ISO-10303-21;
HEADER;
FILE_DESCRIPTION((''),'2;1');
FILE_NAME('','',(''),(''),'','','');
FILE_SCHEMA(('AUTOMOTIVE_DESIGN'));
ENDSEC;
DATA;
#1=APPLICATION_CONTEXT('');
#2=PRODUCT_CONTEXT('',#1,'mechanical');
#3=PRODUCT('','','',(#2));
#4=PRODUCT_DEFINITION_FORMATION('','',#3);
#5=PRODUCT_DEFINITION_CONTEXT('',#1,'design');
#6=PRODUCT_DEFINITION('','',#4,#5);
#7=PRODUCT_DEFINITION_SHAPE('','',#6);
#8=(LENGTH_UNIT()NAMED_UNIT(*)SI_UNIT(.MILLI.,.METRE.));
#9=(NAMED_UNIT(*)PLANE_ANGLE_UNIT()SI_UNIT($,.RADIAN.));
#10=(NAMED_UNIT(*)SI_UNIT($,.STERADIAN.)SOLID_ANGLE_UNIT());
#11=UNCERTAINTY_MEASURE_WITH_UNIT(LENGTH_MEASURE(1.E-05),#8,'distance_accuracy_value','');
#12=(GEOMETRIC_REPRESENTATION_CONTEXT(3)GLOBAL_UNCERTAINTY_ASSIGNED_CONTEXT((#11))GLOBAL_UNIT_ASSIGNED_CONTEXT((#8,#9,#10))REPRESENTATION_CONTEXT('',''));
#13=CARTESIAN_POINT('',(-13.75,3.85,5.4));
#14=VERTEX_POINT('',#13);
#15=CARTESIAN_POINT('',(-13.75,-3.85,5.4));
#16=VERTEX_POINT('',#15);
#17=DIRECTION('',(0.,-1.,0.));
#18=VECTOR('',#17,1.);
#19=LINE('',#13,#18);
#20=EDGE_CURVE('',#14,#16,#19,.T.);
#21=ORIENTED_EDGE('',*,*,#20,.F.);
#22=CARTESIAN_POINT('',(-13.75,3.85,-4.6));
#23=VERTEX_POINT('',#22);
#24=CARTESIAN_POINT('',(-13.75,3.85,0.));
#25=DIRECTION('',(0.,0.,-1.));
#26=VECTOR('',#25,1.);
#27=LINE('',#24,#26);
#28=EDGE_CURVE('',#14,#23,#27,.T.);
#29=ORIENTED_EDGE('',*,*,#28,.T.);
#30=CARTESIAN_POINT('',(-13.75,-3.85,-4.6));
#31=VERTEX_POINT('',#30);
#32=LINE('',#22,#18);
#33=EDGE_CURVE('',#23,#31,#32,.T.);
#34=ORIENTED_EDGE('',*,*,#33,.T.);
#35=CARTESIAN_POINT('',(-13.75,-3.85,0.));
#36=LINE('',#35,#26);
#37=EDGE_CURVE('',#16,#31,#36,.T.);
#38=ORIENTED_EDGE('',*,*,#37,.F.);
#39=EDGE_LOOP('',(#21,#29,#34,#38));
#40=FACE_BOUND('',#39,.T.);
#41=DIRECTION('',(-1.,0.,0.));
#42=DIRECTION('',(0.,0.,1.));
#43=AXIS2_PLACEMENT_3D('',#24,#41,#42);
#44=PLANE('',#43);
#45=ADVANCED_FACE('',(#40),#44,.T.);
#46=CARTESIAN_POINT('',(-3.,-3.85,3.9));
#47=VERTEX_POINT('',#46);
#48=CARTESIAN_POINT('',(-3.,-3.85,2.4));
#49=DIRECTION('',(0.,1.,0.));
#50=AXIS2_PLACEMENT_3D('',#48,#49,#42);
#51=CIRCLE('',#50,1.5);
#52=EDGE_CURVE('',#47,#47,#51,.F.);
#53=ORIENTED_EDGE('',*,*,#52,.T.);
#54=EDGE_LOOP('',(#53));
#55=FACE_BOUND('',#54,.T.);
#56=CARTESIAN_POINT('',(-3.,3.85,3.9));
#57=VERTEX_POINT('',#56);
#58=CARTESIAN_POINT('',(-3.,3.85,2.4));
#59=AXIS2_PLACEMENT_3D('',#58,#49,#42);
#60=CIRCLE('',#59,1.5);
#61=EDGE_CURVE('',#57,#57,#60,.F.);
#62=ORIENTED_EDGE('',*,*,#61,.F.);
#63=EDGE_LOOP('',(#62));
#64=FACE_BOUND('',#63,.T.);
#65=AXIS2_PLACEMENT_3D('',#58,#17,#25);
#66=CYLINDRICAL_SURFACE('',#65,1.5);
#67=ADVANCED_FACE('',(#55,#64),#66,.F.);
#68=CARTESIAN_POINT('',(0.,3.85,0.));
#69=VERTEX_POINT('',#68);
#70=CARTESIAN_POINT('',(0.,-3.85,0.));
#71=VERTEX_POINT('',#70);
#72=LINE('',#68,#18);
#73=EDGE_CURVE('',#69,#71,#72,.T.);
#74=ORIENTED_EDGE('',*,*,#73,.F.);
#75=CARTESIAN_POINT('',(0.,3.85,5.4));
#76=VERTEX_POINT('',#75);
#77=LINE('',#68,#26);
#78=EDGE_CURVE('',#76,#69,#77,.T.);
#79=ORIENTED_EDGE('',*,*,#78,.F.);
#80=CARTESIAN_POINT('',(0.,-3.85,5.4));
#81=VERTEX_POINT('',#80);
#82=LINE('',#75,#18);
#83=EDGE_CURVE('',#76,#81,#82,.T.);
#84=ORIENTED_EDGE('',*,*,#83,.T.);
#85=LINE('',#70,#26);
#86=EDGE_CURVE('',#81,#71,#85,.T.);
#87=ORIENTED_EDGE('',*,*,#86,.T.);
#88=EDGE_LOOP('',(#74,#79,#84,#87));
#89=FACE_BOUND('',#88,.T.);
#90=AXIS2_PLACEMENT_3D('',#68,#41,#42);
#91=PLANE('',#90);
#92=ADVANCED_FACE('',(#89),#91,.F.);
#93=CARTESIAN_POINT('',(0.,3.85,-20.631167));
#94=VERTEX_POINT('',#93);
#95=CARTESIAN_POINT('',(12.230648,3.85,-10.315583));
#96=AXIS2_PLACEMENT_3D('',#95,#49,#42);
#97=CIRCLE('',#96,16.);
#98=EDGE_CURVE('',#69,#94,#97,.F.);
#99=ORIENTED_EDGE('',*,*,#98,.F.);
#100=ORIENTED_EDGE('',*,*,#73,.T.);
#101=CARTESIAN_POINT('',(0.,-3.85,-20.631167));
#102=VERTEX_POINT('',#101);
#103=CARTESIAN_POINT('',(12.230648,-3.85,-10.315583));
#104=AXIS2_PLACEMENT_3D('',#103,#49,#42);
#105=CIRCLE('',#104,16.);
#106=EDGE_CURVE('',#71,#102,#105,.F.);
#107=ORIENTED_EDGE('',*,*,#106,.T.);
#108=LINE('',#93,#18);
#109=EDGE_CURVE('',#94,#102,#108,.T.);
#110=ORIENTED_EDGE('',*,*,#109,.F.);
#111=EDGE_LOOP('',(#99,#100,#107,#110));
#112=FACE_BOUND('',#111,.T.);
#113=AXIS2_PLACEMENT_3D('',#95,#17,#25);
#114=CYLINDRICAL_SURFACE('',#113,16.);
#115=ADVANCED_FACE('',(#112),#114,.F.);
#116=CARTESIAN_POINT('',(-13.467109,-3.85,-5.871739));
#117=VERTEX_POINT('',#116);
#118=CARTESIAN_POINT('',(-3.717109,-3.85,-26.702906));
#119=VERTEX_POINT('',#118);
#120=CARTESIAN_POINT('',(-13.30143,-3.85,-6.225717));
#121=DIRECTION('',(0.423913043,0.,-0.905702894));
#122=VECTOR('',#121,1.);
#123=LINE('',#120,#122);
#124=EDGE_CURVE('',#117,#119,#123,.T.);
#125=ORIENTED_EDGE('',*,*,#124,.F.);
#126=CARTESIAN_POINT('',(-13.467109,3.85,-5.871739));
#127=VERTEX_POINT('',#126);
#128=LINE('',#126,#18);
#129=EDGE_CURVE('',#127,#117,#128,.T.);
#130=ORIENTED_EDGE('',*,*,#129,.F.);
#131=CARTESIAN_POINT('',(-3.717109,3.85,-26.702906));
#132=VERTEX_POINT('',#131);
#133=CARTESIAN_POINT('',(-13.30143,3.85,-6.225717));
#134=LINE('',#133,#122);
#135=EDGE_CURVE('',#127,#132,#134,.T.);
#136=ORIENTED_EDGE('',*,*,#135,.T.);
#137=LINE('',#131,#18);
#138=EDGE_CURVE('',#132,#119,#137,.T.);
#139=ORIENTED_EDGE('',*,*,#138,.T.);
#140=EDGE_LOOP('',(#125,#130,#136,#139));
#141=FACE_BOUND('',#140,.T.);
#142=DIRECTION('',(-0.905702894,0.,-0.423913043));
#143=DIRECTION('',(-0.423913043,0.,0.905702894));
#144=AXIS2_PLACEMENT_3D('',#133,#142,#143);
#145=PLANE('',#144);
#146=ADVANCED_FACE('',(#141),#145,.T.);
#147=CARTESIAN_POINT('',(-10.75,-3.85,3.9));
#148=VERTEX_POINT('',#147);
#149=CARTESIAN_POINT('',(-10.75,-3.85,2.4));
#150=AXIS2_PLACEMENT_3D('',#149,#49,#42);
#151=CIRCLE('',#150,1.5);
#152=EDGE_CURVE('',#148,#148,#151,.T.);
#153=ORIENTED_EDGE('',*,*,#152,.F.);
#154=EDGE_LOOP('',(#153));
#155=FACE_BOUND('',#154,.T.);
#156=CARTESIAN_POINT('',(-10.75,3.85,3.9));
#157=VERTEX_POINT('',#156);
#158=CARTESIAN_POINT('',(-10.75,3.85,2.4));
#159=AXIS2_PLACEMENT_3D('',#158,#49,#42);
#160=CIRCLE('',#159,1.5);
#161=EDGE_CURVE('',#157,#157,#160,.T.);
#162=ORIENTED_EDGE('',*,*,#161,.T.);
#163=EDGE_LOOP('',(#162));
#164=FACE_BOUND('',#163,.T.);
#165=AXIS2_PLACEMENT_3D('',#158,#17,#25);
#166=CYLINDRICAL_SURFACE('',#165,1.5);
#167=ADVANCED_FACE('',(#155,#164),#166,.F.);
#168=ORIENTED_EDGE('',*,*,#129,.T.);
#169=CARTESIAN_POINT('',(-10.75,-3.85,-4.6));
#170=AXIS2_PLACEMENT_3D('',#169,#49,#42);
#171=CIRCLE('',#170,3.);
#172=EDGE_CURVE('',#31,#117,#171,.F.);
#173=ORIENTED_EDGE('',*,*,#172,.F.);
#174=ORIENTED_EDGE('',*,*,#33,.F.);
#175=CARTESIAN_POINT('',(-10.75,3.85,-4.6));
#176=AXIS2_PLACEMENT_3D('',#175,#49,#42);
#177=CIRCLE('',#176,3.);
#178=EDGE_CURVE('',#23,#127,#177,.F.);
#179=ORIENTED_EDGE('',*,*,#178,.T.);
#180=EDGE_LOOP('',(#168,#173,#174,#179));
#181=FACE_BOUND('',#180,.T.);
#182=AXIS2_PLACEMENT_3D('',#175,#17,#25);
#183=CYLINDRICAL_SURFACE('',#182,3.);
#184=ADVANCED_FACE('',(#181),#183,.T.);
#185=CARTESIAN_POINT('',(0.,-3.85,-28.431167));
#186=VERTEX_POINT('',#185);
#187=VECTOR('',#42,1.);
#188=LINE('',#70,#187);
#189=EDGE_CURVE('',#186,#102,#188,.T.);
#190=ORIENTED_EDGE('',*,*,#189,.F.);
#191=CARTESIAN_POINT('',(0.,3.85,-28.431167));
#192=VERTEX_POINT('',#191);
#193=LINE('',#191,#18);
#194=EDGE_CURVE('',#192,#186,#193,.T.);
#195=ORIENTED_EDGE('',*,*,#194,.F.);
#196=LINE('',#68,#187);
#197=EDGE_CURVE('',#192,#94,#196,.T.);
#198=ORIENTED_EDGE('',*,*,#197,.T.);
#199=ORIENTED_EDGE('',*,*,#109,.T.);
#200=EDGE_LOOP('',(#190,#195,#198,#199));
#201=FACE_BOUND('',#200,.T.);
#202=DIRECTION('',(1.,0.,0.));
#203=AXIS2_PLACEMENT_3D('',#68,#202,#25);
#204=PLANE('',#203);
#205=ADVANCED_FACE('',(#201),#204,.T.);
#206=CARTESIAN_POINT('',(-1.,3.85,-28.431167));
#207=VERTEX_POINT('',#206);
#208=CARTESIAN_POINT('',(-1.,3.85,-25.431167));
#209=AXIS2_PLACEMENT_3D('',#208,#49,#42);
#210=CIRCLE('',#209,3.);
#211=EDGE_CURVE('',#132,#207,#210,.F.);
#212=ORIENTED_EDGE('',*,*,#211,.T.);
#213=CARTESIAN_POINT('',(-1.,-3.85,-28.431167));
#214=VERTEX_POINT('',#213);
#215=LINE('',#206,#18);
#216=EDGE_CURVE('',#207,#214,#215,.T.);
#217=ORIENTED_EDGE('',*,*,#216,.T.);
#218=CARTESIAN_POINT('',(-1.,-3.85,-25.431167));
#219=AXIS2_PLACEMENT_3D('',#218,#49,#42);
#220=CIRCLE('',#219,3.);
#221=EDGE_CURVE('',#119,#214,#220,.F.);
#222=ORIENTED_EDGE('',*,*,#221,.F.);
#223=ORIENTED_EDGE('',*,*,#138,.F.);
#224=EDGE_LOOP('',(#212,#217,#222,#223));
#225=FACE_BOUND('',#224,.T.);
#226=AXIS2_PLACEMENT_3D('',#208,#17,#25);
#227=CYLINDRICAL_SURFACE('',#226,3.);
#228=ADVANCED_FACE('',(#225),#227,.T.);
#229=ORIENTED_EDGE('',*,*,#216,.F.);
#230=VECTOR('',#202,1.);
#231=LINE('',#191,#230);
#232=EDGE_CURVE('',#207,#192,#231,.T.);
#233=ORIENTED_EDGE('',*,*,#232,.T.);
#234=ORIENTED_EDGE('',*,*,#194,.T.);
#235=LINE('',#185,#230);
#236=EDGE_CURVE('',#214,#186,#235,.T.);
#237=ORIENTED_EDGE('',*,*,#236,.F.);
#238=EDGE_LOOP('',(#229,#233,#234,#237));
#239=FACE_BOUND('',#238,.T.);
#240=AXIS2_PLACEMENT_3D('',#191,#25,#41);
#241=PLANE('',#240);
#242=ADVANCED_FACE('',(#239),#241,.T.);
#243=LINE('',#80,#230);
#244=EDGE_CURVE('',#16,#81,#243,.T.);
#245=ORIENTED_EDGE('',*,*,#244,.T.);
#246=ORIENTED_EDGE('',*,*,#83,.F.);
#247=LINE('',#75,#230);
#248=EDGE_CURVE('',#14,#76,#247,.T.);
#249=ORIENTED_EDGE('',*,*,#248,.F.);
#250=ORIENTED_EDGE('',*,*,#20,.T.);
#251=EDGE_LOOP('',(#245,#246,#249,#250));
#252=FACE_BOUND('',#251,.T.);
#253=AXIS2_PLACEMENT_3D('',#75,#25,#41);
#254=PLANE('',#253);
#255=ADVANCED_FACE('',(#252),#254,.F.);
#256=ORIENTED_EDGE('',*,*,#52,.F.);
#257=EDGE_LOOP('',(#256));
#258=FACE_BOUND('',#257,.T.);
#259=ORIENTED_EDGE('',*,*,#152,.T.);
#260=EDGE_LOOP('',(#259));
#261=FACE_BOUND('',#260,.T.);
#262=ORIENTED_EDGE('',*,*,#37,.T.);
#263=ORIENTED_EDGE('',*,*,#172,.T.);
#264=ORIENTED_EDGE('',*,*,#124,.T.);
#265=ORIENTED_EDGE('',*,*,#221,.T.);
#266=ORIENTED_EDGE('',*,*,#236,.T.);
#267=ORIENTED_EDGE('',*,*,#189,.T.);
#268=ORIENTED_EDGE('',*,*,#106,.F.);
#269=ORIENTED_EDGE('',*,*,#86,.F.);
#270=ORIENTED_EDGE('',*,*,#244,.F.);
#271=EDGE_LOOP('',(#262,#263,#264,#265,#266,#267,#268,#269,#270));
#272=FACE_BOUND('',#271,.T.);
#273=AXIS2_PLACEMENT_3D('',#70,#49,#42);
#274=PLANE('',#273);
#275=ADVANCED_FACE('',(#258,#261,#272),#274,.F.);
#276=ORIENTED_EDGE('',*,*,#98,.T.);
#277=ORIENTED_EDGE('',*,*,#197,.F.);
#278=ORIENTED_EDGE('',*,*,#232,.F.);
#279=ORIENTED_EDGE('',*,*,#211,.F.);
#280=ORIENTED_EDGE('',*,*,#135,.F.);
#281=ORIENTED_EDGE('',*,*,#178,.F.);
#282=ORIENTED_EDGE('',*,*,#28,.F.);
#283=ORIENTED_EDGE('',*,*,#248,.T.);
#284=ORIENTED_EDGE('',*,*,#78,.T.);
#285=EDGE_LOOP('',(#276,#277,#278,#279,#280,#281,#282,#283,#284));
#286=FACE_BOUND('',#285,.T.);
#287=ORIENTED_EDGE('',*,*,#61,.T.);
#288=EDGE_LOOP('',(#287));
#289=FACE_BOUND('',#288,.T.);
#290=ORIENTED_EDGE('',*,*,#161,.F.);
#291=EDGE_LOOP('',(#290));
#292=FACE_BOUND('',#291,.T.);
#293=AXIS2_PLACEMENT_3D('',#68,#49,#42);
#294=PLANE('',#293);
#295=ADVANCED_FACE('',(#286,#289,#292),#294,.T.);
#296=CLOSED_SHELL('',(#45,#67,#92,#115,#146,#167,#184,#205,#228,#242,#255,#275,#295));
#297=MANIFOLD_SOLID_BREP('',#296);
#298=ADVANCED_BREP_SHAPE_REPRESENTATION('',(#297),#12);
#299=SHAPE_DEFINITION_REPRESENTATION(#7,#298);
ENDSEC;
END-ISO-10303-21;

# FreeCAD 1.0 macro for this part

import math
import FreeCAD as App
import Part
import Sketcher
from FreeCAD import Vector
Q = App.Units.Quantity

doc = App.newDocument("Part")
body = doc.addObject("PartDesign::Body", "Body")

sketch1 = body.newObject("Sketcher::SketchObject", "Sketch")
sketch1.AttachmentSupport = (doc.getObject("XZ_Plane"), [""])
sketch1.MapMode = "FlatFace"
sketch1.addGeometry(Part.LineSegment(Vector(-13.8, 5.4, 0), Vector(0, 5.4, 0)), False)
sketch1.addGeometry(Part.LineSegment(Vector(0, 5.4, 0), Vector(0, 0, 0)), False)
sketch1.addGeometry(Part.ArcOfCircle(Part.Circle(Vector(12.2, -10.3, 0), Vector(0, 0, 1), 16), math.radians(140), math.radians(220)), False)
sketch1.addGeometry(Part.LineSegment(Vector(0, -20.6, 0), Vector(0, -28.4, 0)), False)
sketch1.addGeometry(Part.LineSegment(Vector(0, -28.4, 0), Vector(-1, -28.4, 0)), False)
sketch1.addGeometry(Part.ArcOfCircle(Part.Circle(Vector(-1, -25.4, 0), Vector(0, 0, 1), 3), math.radians(-155), math.radians(-90)), False)
sketch1.addGeometry(Part.LineSegment(Vector(-3.7, -26.7, 0), Vector(-13.5, -5.9, 0)), False)
sketch1.addGeometry(Part.ArcOfCircle(Part.Circle(Vector(-10.8, -4.6, 0), Vector(0, 0, 1), 3), math.radians(180), math.radians(205)), False)
sketch1.addGeometry(Part.LineSegment(Vector(-13.8, -4.6, 0), Vector(-13.8, 5.4, 0)), False)
sketch1.addGeometry(Part.Circle(Vector(-10.8, 2.4, 0), Vector(0, 0, 1), 1.5), False)
sketch1.addGeometry(Part.Circle(Vector(-3, 2.4, 0), Vector(0, 0, 1), 1.5), False)
sketch1.addConstraint(Sketcher.Constraint("Coincident", 0, 2, 1, 1))
sketch1.addConstraint(Sketcher.Constraint("Coincident", 1, 2, 2, 1))
sketch1.addConstraint(Sketcher.Constraint("Coincident", 2, 2, 3, 1))
sketch1.addConstraint(Sketcher.Constraint("Coincident", 3, 2, 4, 1))
sketch1.addConstraint(Sketcher.Constraint("Tangent", 4, 2, 5, 2))
sketch1.addConstraint(Sketcher.Constraint("Tangent", 5, 1, 6, 1))
sketch1.addConstraint(Sketcher.Constraint("Tangent", 6, 2, 7, 2))
sketch1.addConstraint(Sketcher.Constraint("Tangent", 7, 1, 8, 1))
sketch1.addConstraint(Sketcher.Constraint("Coincident", 8, 2, 0, 1))
sketch1.addConstraint(Sketcher.Constraint("Horizontal", 0))
sketch1.addConstraint(Sketcher.Constraint("Vertical", 1))
sketch1.addConstraint(Sketcher.Constraint("Vertical", 3))
sketch1.addConstraint(Sketcher.Constraint("Horizontal", 4))
sketch1.addConstraint(Sketcher.Constraint("Vertical", 8))
sketch1.addConstraint(Sketcher.Constraint("Coincident", 1, 2, -1, 1))
sketch1.addConstraint(Sketcher.Constraint("Equal", 5, 7))
sketch1.addConstraint(Sketcher.Constraint("Equal", 9, 10))
sketch1.addConstraint(Sketcher.Constraint("PointOnObject", 2, 2, -2))
sketch1.addConstraint(Sketcher.Constraint("Horizontal", 9, 3, 10, 3))
sketch1.addConstraint(Sketcher.Constraint("Vertical", 7, 3, 9, 3))
sketch1.addConstraint(Sketcher.Constraint("Diameter", 9, Q("3 mm")))
sketch1.addConstraint(Sketcher.Constraint("Radius", 2, Q("16 mm")))
sketch1.addConstraint(Sketcher.Constraint("Radius", 5, Q("3 mm")))
sketch1.addConstraint(Sketcher.Constraint("DistanceX", 4, 2, 4, 1, Q("1 mm")))
sketch1.addConstraint(Sketcher.Constraint("DistanceY", 8, 1, 8, 2, Q("10 mm")))
sketch1.addConstraint(Sketcher.Constraint("Distance", 6, Q("23 mm")))
sketch1.addConstraint(Sketcher.Constraint("DistanceY", 1, 2, 1, 1, Q("5.4 mm")))
sketch1.addConstraint(Sketcher.Constraint("DistanceY", 3, 2, 3, 1, Q("7.8 mm")))
sketch1.addConstraint(Sketcher.Constraint("DistanceX", 10, 3, -1, 1, Q("3 mm")))
sketch1.addConstraint(Sketcher.Constraint("DistanceY", 7, 3, 9, 3, Q("7 mm")))
sketch1.addConstraint(Sketcher.Constraint("DistanceX", 0, 1, 0, 2, Q("13.75 mm")))
pad1 = body.newObject("PartDesign::Pad", "Pad")
pad1.Profile = sketch1
pad1.Length = 7.7
pad1.Midplane = True

doc.recompute()
